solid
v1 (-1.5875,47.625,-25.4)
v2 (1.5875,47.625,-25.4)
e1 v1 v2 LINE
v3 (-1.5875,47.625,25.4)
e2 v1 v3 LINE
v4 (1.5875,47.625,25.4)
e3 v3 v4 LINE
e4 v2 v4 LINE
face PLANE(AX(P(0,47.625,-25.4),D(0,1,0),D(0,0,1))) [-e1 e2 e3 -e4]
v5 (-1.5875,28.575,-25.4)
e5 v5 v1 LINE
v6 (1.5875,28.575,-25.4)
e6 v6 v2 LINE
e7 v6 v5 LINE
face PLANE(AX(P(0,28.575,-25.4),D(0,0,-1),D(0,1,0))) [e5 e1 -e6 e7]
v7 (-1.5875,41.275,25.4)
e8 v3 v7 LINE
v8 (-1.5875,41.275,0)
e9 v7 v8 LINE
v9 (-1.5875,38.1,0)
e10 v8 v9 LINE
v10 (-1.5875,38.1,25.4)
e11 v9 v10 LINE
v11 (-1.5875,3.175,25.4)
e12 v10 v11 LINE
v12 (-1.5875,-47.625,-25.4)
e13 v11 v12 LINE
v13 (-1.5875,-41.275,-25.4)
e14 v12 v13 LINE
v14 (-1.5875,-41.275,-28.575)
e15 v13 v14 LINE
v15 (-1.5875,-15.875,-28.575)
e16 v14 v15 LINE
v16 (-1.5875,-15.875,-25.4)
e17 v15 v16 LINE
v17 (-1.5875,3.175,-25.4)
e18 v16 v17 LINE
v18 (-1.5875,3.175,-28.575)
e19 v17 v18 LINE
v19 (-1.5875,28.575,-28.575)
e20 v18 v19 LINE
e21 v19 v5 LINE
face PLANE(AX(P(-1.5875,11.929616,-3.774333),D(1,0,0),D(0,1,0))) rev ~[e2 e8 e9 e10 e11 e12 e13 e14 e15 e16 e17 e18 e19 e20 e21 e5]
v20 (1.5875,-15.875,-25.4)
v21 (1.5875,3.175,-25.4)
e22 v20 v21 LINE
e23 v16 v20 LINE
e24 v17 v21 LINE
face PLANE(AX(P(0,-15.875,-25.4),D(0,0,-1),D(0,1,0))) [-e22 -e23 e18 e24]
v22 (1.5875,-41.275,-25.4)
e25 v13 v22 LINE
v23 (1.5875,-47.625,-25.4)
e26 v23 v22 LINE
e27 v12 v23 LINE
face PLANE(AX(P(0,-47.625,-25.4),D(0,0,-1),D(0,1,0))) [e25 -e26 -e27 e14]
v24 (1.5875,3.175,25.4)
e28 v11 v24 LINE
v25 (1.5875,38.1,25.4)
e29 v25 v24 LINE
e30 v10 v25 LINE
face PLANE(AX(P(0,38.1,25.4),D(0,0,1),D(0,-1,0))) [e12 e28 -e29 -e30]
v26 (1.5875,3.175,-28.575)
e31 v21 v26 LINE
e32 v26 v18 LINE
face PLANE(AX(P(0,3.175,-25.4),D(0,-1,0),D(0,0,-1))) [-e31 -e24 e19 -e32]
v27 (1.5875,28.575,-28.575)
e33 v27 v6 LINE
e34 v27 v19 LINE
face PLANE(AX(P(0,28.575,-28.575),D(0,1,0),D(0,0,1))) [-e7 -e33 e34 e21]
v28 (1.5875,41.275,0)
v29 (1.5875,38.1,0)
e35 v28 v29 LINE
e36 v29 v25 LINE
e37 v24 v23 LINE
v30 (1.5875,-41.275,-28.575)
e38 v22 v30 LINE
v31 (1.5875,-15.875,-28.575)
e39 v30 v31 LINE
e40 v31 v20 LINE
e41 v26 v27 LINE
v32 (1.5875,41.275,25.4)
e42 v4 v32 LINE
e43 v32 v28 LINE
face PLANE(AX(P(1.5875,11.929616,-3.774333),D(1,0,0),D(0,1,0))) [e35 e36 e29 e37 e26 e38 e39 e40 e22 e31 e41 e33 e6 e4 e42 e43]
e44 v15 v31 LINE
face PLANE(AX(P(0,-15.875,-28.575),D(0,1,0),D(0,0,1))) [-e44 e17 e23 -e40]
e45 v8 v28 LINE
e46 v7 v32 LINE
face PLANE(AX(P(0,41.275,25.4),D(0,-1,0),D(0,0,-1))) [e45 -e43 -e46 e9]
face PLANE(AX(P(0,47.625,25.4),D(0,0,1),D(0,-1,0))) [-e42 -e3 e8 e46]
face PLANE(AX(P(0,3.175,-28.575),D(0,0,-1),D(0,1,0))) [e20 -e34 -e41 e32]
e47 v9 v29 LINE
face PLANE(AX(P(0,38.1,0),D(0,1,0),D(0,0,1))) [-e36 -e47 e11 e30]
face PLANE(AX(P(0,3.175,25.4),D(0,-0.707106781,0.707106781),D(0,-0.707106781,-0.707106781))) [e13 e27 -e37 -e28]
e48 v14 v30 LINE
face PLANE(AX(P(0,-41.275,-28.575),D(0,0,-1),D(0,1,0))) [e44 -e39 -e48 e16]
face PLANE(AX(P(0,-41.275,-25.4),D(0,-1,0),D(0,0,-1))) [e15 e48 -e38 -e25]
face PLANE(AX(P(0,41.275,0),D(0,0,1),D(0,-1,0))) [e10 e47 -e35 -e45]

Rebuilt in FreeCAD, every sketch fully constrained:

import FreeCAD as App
import Part
import Sketcher
Q = App.Units.Quantity

doc = App.newDocument("Part")
body = doc.addObject("PartDesign::Body", "Body")

# Sketch on YZ plane
sketch1 = body.newObject("Sketcher::SketchObject", "Sketch")
sketch1.AttachmentSupport = (doc.getObject("YZ_Plane"), [""])
sketch1.MapMode = "FlatFace"
sketch1.addGeometry([
    Part.LineSegment(App.Vector(28.6, -25.4, 0), App.Vector(47.6, -25.4, 0)),  # 0
    Part.LineSegment(App.Vector(47.6, -25.4, 0), App.Vector(47.6, 25.4, 0)),  # 1
    Part.LineSegment(App.Vector(47.6, 25.4, 0), App.Vector(41.3, 25.4, 0)),  # 2
    Part.LineSegment(App.Vector(41.3, 25.4, 0), App.Vector(41.3, 0, 0)),  # 3
    Part.LineSegment(App.Vector(41.3, 0, 0), App.Vector(38.1, 0, 0)),  # 4
    Part.LineSegment(App.Vector(38.1, 0, 0), App.Vector(38.1, 25.4, 0)),  # 5
    Part.LineSegment(App.Vector(38.1, 25.4, 0), App.Vector(3.2, 25.4, 0)),  # 6
    Part.LineSegment(App.Vector(3.2, 25.4, 0), App.Vector(-47.6, -25.4, 0)),  # 7
    Part.LineSegment(App.Vector(-47.6, -25.4, 0), App.Vector(-41.3, -25.4, 0)),  # 8
    Part.LineSegment(App.Vector(-41.3, -25.4, 0), App.Vector(-41.3, -28.6, 0)),  # 9
    Part.LineSegment(App.Vector(-41.3, -28.6, 0), App.Vector(-15.9, -28.6, 0)),  # 10
    Part.LineSegment(App.Vector(-15.9, -28.6, 0), App.Vector(-15.9, -25.4, 0)),  # 11
    Part.LineSegment(App.Vector(-15.9, -25.4, 0), App.Vector(3.2, -25.4, 0)),  # 12
    Part.LineSegment(App.Vector(3.2, -25.4, 0), App.Vector(3.2, -28.6, 0)),  # 13
    Part.LineSegment(App.Vector(3.2, -28.6, 0), App.Vector(28.6, -28.6, 0)),  # 14
    Part.LineSegment(App.Vector(28.6, -28.6, 0), App.Vector(28.6, -25.4, 0)),  # 15
], False)
sketch1.addConstraint([
    Sketcher.Constraint("Coincident", 0, 2, 1, 1),
    Sketcher.Constraint("Coincident", 1, 2, 2, 1),
    Sketcher.Constraint("Coincident", 2, 2, 3, 1),
    Sketcher.Constraint("Coincident", 3, 2, 4, 1),
    Sketcher.Constraint("Coincident", 4, 2, 5, 1),
    Sketcher.Constraint("Coincident", 5, 2, 6, 1),
    Sketcher.Constraint("Coincident", 6, 2, 7, 1),
    Sketcher.Constraint("Coincident", 7, 2, 8, 1),
    Sketcher.Constraint("Coincident", 8, 2, 9, 1),
    Sketcher.Constraint("Coincident", 9, 2, 10, 1),
    Sketcher.Constraint("Coincident", 10, 2, 11, 1),
    Sketcher.Constraint("Coincident", 11, 2, 12, 1),
    Sketcher.Constraint("Coincident", 12, 2, 13, 1),
    Sketcher.Constraint("Coincident", 13, 2, 14, 1),
    Sketcher.Constraint("Coincident", 14, 2, 15, 1),
    Sketcher.Constraint("Coincident", 15, 2, 0, 1),
    Sketcher.Constraint("Horizontal", 0),
    Sketcher.Constraint("Vertical", 1),
    Sketcher.Constraint("Horizontal", 2),
    Sketcher.Constraint("Vertical", 3),
    Sketcher.Constraint("Horizontal", 4),
    Sketcher.Constraint("Vertical", 5),
    Sketcher.Constraint("Horizontal", 6),
    Sketcher.Constraint("Horizontal", 8),
    Sketcher.Constraint("Vertical", 9),
    Sketcher.Constraint("Horizontal", 10),
    Sketcher.Constraint("Vertical", 11),
    Sketcher.Constraint("Horizontal", 12),
    Sketcher.Constraint("Vertical", 13),
    Sketcher.Constraint("Horizontal", 14),
    Sketcher.Constraint("Vertical", 15),
    Sketcher.Constraint("Symmetric", 1, 2, 7, 2, -1, 1),
    Sketcher.Constraint("Symmetric", 6, 2, 12, 2, -1),
    Sketcher.Constraint("PointOnObject", 3, 2, -1),
    Sketcher.Constraint("Horizontal", 2, 2, 5, 2),
    Sketcher.Constraint("Horizontal", 0, 2, 7, 2),
    Sketcher.Constraint("Horizontal", 10, 2, 13, 2),
    Sketcher.Constraint("Equal", 2, 8),
    Sketcher.Constraint("Equal", 0, 12),
    Sketcher.Constraint("Equal", 10, 14),
    Sketcher.Constraint("Equal", 14, 3),
    Sketcher.Constraint("Equal", 4, 9),
    Sketcher.Constraint("DistanceX", 10, 1, 10, 2, Q("1 in")),
    Sketcher.Constraint("Angle", 7, Q("-135 deg")),
    Sketcher.Constraint("DistanceX", 0, 1, 0, 2, Q("0.75 in")),
    Sketcher.Constraint("DistanceX", -1, 1, 4, 2, Q("1.5 in")),
])
pad1 = body.newObject("PartDesign::Pad", "Pad")
pad1.Profile = sketch1
pad1.Length = Q("0.125 in")
pad1.Midplane = True

doc.recompute()
